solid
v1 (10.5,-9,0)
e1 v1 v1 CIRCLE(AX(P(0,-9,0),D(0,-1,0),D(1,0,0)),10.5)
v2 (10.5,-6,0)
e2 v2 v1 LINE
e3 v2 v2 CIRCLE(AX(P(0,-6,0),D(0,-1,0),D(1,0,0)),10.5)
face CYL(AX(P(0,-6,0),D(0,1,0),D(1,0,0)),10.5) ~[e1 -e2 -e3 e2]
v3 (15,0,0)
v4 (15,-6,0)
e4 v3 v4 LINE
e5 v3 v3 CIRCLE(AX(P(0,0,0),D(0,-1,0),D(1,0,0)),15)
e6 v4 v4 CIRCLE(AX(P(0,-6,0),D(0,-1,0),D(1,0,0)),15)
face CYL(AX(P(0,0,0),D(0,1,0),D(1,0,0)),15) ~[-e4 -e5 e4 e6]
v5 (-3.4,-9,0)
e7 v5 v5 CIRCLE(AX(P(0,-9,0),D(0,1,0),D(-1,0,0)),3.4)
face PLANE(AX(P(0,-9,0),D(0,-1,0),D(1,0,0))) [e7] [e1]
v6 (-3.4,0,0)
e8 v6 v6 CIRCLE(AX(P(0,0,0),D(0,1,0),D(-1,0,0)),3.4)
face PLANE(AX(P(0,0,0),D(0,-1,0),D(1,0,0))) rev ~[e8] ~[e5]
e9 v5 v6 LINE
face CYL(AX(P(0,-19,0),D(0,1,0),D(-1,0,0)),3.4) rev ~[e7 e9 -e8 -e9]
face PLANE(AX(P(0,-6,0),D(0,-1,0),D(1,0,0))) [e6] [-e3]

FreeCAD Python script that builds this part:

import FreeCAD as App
import Part
import Sketcher

V = App.Vector
Q = App.Units.Quantity

doc = App.newDocument("Part")
body = doc.addObject("PartDesign::Body", "Body")

# Sketch on XZ plane
sketch1 = body.newObject("Sketcher::SketchObject", "Sketch")
sketch1.AttachmentSupport = (doc.getObject("XZ_Plane"), [""])
sketch1.MapMode = "FlatFace"
sketch1.addGeometry(Part.Circle(V(0, 0, 0), V(0, 0, 1), 15), False)
sketch1.addConstraint(Sketcher.Constraint("Coincident", 0, 3, -1, 1))
sketch1.addConstraint(Sketcher.Constraint("Diameter", 0, Q("30 mm")))
pad1 = body.newObject("PartDesign::Pad", "Pad")
pad1.Profile = sketch1
pad1.Length = 6

# Sketch on XZ plane
sketch2 = body.newObject("Sketcher::SketchObject", "Sketch001")
sketch2.AttachmentSupport = (doc.getObject("XZ_Plane"), [""])
sketch2.MapMode = "FlatFace"
sketch2.AttachmentOffset = App.Placement(V(0, 0, 6), App.Rotation())
sketch2.addGeometry(Part.Circle(V(0, 0, 0), V(0, 0, 1), 10.5), False)
sketch2.addConstraint(Sketcher.Constraint("Coincident", 0, 3, -1, 1))
sketch2.addConstraint(Sketcher.Constraint("Diameter", 0, Q("21 mm")))
pad2 = body.newObject("PartDesign::Pad", "Pad001")
pad2.Profile = sketch2
pad2.Length = 3

# Sketch on XZ plane
sketch3 = body.newObject("Sketcher::SketchObject", "Sketch002")
sketch3.AttachmentSupport = (doc.getObject("XZ_Plane"), [""])
sketch3.MapMode = "FlatFace"
sketch3.AttachmentOffset = App.Placement(V(0, 0, 9), App.Rotation())
sketch3.addGeometry(Part.Circle(V(0, 0, 0), V(0, 0, 1), 3.4), False)
sketch3.addConstraint(Sketcher.Constraint("Coincident", 0, 3, -1, 1))
sketch3.addConstraint(Sketcher.Constraint("Diameter", 0, Q("6.8 mm")))
doc.recompute()
hole = body.newObject("PartDesign::Hole", "Hole")
hole.Profile = sketch3
hole.ThreadType = "None"
hole.Diameter = 6.8
hole.DepthType = "Dimension"
hole.Depth = 10
hole.DrillPoint = "Flat"

doc.recompute()
